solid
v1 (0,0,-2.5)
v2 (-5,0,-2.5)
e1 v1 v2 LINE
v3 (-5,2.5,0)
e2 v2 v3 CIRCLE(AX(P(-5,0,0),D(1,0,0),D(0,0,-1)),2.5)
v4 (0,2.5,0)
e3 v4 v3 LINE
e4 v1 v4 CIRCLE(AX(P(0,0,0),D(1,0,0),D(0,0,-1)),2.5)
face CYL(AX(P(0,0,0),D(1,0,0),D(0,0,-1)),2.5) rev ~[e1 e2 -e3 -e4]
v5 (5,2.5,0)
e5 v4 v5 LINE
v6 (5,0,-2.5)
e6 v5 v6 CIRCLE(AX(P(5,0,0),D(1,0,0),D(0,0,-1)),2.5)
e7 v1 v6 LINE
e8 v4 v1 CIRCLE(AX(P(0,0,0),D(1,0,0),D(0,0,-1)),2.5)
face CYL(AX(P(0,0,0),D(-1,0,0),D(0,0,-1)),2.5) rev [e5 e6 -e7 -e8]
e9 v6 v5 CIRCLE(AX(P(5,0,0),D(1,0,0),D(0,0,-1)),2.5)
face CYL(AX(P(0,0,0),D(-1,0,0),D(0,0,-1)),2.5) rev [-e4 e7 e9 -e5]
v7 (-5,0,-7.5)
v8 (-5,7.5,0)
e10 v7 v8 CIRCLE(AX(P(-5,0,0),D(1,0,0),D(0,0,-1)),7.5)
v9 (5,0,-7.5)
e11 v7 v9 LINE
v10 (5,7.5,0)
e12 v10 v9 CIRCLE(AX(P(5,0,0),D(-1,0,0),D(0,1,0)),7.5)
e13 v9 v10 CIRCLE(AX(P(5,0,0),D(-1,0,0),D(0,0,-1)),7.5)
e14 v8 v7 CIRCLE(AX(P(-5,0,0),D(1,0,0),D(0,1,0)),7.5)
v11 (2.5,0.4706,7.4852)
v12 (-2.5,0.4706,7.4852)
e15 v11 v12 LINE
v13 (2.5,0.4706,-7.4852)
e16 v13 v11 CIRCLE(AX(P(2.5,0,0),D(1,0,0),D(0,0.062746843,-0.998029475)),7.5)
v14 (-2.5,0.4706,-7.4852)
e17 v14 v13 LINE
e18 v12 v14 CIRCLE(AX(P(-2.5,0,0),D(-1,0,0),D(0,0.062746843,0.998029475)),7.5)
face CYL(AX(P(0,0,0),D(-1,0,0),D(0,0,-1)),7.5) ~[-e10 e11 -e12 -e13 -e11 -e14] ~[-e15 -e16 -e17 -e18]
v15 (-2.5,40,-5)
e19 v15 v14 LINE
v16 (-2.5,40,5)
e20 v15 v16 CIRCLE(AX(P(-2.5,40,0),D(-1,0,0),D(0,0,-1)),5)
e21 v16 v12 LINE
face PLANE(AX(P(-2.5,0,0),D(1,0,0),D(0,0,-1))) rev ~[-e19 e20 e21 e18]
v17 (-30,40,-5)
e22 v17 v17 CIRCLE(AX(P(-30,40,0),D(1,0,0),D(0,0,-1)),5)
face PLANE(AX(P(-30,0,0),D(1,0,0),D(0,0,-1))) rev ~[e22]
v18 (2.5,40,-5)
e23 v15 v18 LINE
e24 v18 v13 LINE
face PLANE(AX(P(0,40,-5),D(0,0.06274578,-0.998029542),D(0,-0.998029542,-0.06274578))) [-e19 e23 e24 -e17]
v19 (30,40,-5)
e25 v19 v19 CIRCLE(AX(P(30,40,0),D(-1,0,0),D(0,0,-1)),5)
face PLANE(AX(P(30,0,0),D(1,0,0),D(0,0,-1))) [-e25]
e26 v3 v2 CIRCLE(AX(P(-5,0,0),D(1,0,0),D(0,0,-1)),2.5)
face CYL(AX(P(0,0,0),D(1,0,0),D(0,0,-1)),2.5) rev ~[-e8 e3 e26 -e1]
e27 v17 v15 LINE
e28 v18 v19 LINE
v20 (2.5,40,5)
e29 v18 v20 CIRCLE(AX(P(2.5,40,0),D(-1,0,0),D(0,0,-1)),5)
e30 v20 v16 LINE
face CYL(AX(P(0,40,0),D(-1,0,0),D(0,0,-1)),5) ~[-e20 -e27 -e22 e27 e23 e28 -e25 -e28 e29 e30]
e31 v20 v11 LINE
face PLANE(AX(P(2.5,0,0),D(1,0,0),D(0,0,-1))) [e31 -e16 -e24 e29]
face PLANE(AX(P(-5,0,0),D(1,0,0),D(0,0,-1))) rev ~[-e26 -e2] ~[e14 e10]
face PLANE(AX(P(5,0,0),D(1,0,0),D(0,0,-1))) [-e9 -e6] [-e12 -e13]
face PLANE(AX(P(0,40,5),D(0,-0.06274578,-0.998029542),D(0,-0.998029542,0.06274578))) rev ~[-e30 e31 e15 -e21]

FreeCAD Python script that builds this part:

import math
import FreeCAD as App
import Part
import Sketcher

V = App.Vector

doc = App.newDocument("Part")
body = doc.addObject("PartDesign::Body", "Body")

# Sketch on YZ plane
sketch1 = body.newObject("Sketcher::SketchObject", "Sketch")
sketch1.AttachmentSupport = (doc.getObject("YZ_Plane"), [""])
sketch1.MapMode = "FlatFace"
sketch1.addGeometry([
    Part.Circle(V(0, 0, 0), V(0, 0, 1), 7.5),
    Part.Circle(V(0, 0, 0), V(0, 0, 1), 2.5),
], False)
sketch1.addConstraint([
    Sketcher.Constraint("Coincident", 0, 3, -1, 1),
    Sketcher.Constraint("Coincident", 1, 3, -1, 1),
    Sketcher.Constraint("Diameter", 1, 5.0),
    Sketcher.Constraint("Diameter", 0, 15.0),
])
pad1 = body.newObject("PartDesign::Pad", "Pad")
pad1.Profile = sketch1
pad1.Length = 10
pad1.Midplane = True

# Sketch on YZ plane
sketch2 = body.newObject("Sketcher::SketchObject", "Sketch001")
sketch2.AttachmentSupport = (doc.getObject("YZ_Plane"), [""])
sketch2.MapMode = "FlatFace"
sketch2.addGeometry([
    Part.ArcOfCircle(Part.Circle(V(0, 0, 0), V(0, 0, 1), 8), math.radians(-86), math.radians(86)),
    Part.LineSegment(V(0, -7, 0), V(40, -5, 0)),
    Part.ArcOfCircle(Part.Circle(V(40, 0, 0), V(0, 0, 1), 5), math.radians(90), math.radians(270)),
    Part.LineSegment(V(40, 5, 0), V(0, 7, 0)),
], False)
sketch2.addConstraint([
    Sketcher.Constraint("Tangent", 0, 1, 1, 1),
    Sketcher.Constraint("Coincident", 1, 2, 2, 2),
    Sketcher.Constraint("Coincident", 2, 1, 3, 1),
    Sketcher.Constraint("Tangent", 3, 2, 0, 2),
    Sketcher.Constraint("Coincident", 0, 3, -1, 1),
    Sketcher.Constraint("Symmetric", 1, 2, 2, 1, -1),
    Sketcher.Constraint("Vertical", 2, 3, 1, 2),
    Sketcher.Constraint("Radius", 2, 5.0),
    Sketcher.Constraint("DistanceX", -1, 1, 2, 3, 40.0),
    Sketcher.Constraint("Radius", 0, 7.5),
])
pad2 = body.newObject("PartDesign::Pad", "Pad001")
pad2.Profile = sketch2
pad2.Length = 5
pad2.Midplane = True

# Sketch on YZ plane
sketch3 = body.newObject("Sketcher::SketchObject", "Sketch002")
sketch3.AttachmentSupport = (doc.getObject("YZ_Plane"), [""])
sketch3.MapMode = "FlatFace"
sketch3.addGeometry(Part.Circle(V(40, 0, 0), V(0, 0, 1), 5), False)
sketch3.addConstraint([
    Sketcher.Constraint("PointOnObject", 0, 3, -1),
    Sketcher.Constraint("Diameter", 0, 10.0),
    Sketcher.Constraint("DistanceX", -1, 1, 0, 3, 40.0),
])
pad3 = body.newObject("PartDesign::Pad", "Pad002")
pad3.Profile = sketch3
pad3.Length = 60
pad3.Midplane = True

doc.recompute()
